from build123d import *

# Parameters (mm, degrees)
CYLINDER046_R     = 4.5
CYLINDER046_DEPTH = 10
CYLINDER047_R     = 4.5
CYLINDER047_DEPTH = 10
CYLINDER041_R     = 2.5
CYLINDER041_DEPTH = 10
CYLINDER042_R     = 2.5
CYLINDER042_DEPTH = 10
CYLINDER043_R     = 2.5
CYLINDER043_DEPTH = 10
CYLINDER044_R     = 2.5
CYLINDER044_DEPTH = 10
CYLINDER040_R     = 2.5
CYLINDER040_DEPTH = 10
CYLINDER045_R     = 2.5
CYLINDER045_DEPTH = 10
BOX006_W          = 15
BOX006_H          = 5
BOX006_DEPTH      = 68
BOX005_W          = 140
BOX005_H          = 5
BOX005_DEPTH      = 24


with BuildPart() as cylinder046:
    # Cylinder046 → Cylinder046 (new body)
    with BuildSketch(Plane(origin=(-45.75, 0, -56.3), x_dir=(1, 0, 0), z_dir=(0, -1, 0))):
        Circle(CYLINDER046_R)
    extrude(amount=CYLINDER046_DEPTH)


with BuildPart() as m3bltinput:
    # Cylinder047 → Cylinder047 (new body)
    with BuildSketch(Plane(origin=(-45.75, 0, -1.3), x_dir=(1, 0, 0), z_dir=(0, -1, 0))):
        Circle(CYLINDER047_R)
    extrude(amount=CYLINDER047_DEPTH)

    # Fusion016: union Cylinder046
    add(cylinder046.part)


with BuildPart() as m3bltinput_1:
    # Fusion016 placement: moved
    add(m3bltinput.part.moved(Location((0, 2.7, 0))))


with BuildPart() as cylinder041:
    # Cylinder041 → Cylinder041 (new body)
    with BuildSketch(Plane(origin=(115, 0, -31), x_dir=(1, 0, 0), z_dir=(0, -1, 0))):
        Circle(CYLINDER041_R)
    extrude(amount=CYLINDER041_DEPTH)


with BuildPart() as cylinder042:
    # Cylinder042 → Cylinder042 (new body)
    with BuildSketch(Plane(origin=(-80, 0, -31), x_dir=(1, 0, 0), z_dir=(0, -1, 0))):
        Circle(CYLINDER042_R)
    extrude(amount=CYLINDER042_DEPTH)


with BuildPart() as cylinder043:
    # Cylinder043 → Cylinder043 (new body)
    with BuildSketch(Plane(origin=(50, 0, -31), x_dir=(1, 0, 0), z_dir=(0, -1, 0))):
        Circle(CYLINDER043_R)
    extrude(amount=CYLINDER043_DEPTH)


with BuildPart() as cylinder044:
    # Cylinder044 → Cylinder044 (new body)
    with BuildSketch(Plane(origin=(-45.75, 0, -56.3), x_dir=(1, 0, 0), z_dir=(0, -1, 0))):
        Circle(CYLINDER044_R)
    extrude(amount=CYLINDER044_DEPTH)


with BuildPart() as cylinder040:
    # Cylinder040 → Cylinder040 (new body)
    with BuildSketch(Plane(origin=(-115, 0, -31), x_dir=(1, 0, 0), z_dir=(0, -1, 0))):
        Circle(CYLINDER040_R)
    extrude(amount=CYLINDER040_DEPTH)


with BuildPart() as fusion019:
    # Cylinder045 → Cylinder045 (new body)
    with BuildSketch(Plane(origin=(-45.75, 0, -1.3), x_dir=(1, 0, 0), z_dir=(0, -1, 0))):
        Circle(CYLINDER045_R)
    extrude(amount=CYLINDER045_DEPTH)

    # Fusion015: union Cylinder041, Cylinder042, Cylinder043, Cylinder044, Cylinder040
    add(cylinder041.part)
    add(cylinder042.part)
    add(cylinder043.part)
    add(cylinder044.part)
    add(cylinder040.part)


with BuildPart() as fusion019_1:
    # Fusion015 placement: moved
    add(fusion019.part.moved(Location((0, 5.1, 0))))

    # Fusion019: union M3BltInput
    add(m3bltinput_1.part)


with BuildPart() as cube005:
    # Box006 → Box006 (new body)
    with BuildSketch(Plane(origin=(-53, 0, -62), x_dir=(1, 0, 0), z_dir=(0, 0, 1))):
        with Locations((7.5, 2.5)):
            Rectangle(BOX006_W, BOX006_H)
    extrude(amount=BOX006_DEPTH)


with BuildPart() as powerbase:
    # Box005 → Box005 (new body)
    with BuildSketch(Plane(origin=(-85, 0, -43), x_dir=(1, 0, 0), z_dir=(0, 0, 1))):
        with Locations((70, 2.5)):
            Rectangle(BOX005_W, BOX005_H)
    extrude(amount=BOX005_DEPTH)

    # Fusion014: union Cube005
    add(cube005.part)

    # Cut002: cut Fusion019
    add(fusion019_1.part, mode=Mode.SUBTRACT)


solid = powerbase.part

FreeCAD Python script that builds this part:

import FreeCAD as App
import Part
import Sketcher

doc = App.newDocument("Part")
body = doc.addObject("PartDesign::Body", "Body")

# Sketch on XZ plane
sketch1 = body.newObject("Sketcher::SketchObject", "Sketch")
sketch1.AttachmentSupport = (doc.getObject("XZ_Plane"), [""])
sketch1.MapMode = "FlatFace"
sketch1.addGeometry(Part.Circle(App.Vector(-45.8, -56.3, 0), App.Vector(0, 0, 1), 4.5), False)
sketch1.addConstraint([
    Sketcher.Constraint("Diameter", 0, 9.0),
    Sketcher.Constraint("DistanceY", 0, 3, -1, 1, 56.3),
    Sketcher.Constraint("DistanceX", 0, 3, -1, 1, 45.75),
])
pad1 = body.newObject("PartDesign::Pad", "Pad")
pad1.Profile = sketch1
pad1.Length = 10
body2 = doc.addObject("PartDesign::Body", "Body001")
body2.AllowCompound = True

# Sketch on XZ plane
sketch2 = body2.newObject("Sketcher::SketchObject", "Sketch001")
sketch2.AttachmentSupport = (doc.getObject("XZ_Plane001"), [""])
sketch2.MapMode = "FlatFace"
sketch2.addGeometry(Part.Circle(App.Vector(-45.8, -1.3, 0), App.Vector(0, 0, 1), 4.5), False)
sketch2.addConstraint([
    Sketcher.Constraint("Diameter", 0, 9.0),
    Sketcher.Constraint("DistanceY", 0, 3, -1, 1, 1.3),
    Sketcher.Constraint("DistanceX", 0, 3, -1, 1, 45.75),
])
pad2 = body2.newObject("PartDesign::Pad", "Pad001")
pad2.Profile = sketch2
pad2.Length = 10
doc.recompute()

boolean = body2.newObject("PartDesign::Boolean", "Boolean")
boolean.Type = "Fuse"
boolean.addObjects([body])
body3 = doc.addObject("PartDesign::Body", "Body002")
body3.AllowCompound = True
doc.recompute()

body2.Placement = App.Placement(App.Vector(0, 2.7, 0), App.Rotation(App.Vector(0, 0, 1), 0))
boolean2 = body3.newObject("PartDesign::Boolean", "Boolean001")
boolean2.Type = "Fuse"
boolean2.addObjects([body2])
body4 = doc.addObject("PartDesign::Body", "Body003")

# Sketch on XZ plane
sketch3 = body4.newObject("Sketcher::SketchObject", "Sketch002")
sketch3.AttachmentSupport = (doc.getObject("XZ_Plane003"), [""])
sketch3.MapMode = "FlatFace"
sketch3.addGeometry(Part.Circle(App.Vector(115, -31, 0), App.Vector(0, 0, 1), 2.5), False)
sketch3.addConstraint([
    Sketcher.Constraint("Diameter", 0, 5.0),
    Sketcher.Constraint("DistanceX", -1, 1, 0, 3, 115.0),
    Sketcher.Constraint("DistanceY", 0, 3, -1, 1, 31.0),
])
pad3 = body4.newObject("PartDesign::Pad", "Pad002")
pad3.Profile = sketch3
pad3.Length = 10
body5 = doc.addObject("PartDesign::Body", "Body004")

# Sketch on XZ plane
sketch4 = body5.newObject("Sketcher::SketchObject", "Sketch003")
sketch4.AttachmentSupport = (doc.getObject("XZ_Plane004"), [""])
sketch4.MapMode = "FlatFace"
sketch4.addGeometry(Part.Circle(App.Vector(-80, -31, 0), App.Vector(0, 0, 1), 2.5), False)
sketch4.addConstraint([
    Sketcher.Constraint("Diameter", 0, 5.0),
    Sketcher.Constraint("DistanceX", 0, 3, -1, 1, 80.0),
    Sketcher.Constraint("DistanceY", 0, 3, -1, 1, 31.0),
])
pad4 = body5.newObject("PartDesign::Pad", "Pad003")
pad4.Profile = sketch4
pad4.Length = 10
body6 = doc.addObject("PartDesign::Body", "Body005")

# Sketch on XZ plane
sketch5 = body6.newObject("Sketcher::SketchObject", "Sketch004")
sketch5.AttachmentSupport = (doc.getObject("XZ_Plane005"), [""])
sketch5.MapMode = "FlatFace"
sketch5.addGeometry(Part.Circle(App.Vector(50, -31, 0), App.Vector(0, 0, 1), 2.5), False)
sketch5.addConstraint([
    Sketcher.Constraint("Diameter", 0, 5.0),
    Sketcher.Constraint("DistanceX", -1, 1, 0, 3, 50.0),
    Sketcher.Constraint("DistanceY", 0, 3, -1, 1, 31.0),
])
pad5 = body6.newObject("PartDesign::Pad", "Pad004")
pad5.Profile = sketch5
pad5.Length = 10
body7 = doc.addObject("PartDesign::Body", "Body006")

# Sketch on XZ plane
sketch6 = body7.newObject("Sketcher::SketchObject", "Sketch005")
sketch6.AttachmentSupport = (doc.getObject("XZ_Plane006"), [""])
sketch6.MapMode = "FlatFace"
sketch6.addGeometry(Part.Circle(App.Vector(-45.8, -56.3, 0), App.Vector(0, 0, 1), 2.5), False)
sketch6.addConstraint([
    Sketcher.Constraint("Diameter", 0, 5.0),
    Sketcher.Constraint("DistanceY", 0, 3, -1, 1, 56.3),
    Sketcher.Constraint("DistanceX", 0, 3, -1, 1, 45.75),
])
pad6 = body7.newObject("PartDesign::Pad", "Pad005")
pad6.Profile = sketch6
pad6.Length = 10
body8 = doc.addObject("PartDesign::Body", "Body007")

# Sketch on XZ plane
sketch7 = body8.newObject("Sketcher::SketchObject", "Sketch006")
sketch7.AttachmentSupport = (doc.getObject("XZ_Plane007"), [""])
sketch7.MapMode = "FlatFace"
sketch7.addGeometry(Part.Circle(App.Vector(-115, -31, 0), App.Vector(0, 0, 1), 2.5), False)
sketch7.addConstraint([
    Sketcher.Constraint("Diameter", 0, 5.0),
    Sketcher.Constraint("DistanceX", 0, 3, -1, 1, 115.0),
    Sketcher.Constraint("DistanceY", 0, 3, -1, 1, 31.0),
])
pad7 = body8.newObject("PartDesign::Pad", "Pad006")
pad7.Profile = sketch7
pad7.Length = 10
body9 = doc.addObject("PartDesign::Body", "Body008")
body9.AllowCompound = True

# Sketch on XZ plane
sketch8 = body9.newObject("Sketcher::SketchObject", "Sketch007")
sketch8.AttachmentSupport = (doc.getObject("XZ_Plane008"), [""])
sketch8.MapMode = "FlatFace"
sketch8.addGeometry(Part.Circle(App.Vector(-45.8, -1.3, 0), App.Vector(0, 0, 1), 2.5), False)
sketch8.addConstraint([
    Sketcher.Constraint("Diameter", 0, 5.0),
    Sketcher.Constraint("DistanceY", 0, 3, -1, 1, 1.3),
    Sketcher.Constraint("DistanceX", 0, 3, -1, 1, 45.75),
])
pad8 = body9.newObject("PartDesign::Pad", "Pad007")
pad8.Profile = sketch8
pad8.Length = 10
doc.recompute()

boolean3 = body9.newObject("PartDesign::Boolean", "Boolean002")
boolean3.Type = "Fuse"
boolean3.addObjects([body4])
doc.recompute()

boolean4 = body9.newObject("PartDesign::Boolean", "Boolean003")
boolean4.Type = "Fuse"
boolean4.addObjects([body5])
doc.recompute()

boolean5 = body9.newObject("PartDesign::Boolean", "Boolean004")
boolean5.Type = "Fuse"
boolean5.addObjects([body6])
doc.recompute()

boolean6 = body9.newObject("PartDesign::Boolean", "Boolean005")
boolean6.Type = "Fuse"
boolean6.addObjects([body7])
doc.recompute()

boolean7 = body9.newObject("PartDesign::Boolean", "Boolean006")
boolean7.Type = "Fuse"
boolean7.addObjects([body8])
body10 = doc.addObject("PartDesign::Body", "Body009")
body10.AllowCompound = True
doc.recompute()

body9.Placement = App.Placement(App.Vector(0, 5.1, 0), App.Rotation(App.Vector(0, 0, 1), 0))
boolean8 = body10.newObject("PartDesign::Boolean", "Boolean007")
boolean8.Type = "Fuse"
boolean8.addObjects([body9])
doc.recompute()

boolean9 = body10.newObject("PartDesign::Boolean", "Boolean008")
boolean9.Type = "Fuse"
boolean9.addObjects([body3])
body11 = doc.addObject("PartDesign::Body", "Body010")

# Sketch on XY plane
sketch9 = body11.newObject("Sketcher::SketchObject", "Sketch008")
sketch9.AttachmentSupport = (doc.getObject("XY_Plane010"), [""])
sketch9.MapMode = "FlatFace"
sketch9.AttachmentOffset = App.Placement(App.Vector(0, 0, -62), App.Rotation())
sketch9.addGeometry([
    Part.LineSegment(App.Vector(-53, 5, 0), App.Vector(-53, 0, 0)),
    Part.LineSegment(App.Vector(-53, 0, 0), App.Vector(-38, 0, 0)),
    Part.LineSegment(App.Vector(-38, 0, 0), App.Vector(-38, 5, 0)),
    Part.LineSegment(App.Vector(-38, 5, 0), App.Vector(-53, 5, 0)),
], False)
sketch9.addConstraint([
    Sketcher.Constraint("Coincident", 0, 2, 1, 1),
    Sketcher.Constraint("Coincident", 1, 2, 2, 1),
    Sketcher.Constraint("Coincident", 2, 2, 3, 1),
    Sketcher.Constraint("Coincident", 3, 2, 0, 1),
    Sketcher.Constraint("Vertical", 0),
    Sketcher.Constraint("Horizontal", 1),
    Sketcher.Constraint("Vertical", 2),
    Sketcher.Constraint("Horizontal", 3),
    Sketcher.Constraint("PointOnObject", 0, 2, -1),
    Sketcher.Constraint("DistanceX", 1, 1, 1, 2, 15.0),
    Sketcher.Constraint("DistanceY", 0, 2, 0, 1, 5.0),
    Sketcher.Constraint("DistanceX", 0, 2, -1, 1, 53.0),
])
pad9 = body11.newObject("PartDesign::Pad", "Pad008")
pad9.Profile = sketch9
pad9.Length = 68
body12 = doc.addObject("PartDesign::Body", "Body011")

# Sketch on XY plane
sketch10 = body12.newObject("Sketcher::SketchObject", "Sketch009")
sketch10.AttachmentSupport = (doc.getObject("XY_Plane011"), [""])
sketch10.MapMode = "FlatFace"
sketch10.AttachmentOffset = App.Placement(App.Vector(0, 0, -43), App.Rotation())
sketch10.addGeometry([
    Part.LineSegment(App.Vector(-85, 5, 0), App.Vector(-85, 0, 0)),
    Part.LineSegment(App.Vector(-85, 0, 0), App.Vector(55, 0, 0)),
    Part.LineSegment(App.Vector(55, 0, 0), App.Vector(55, 5, 0)),
    Part.LineSegment(App.Vector(55, 5, 0), App.Vector(-85, 5, 0)),
], False)
sketch10.addConstraint([
    Sketcher.Constraint("Coincident", 0, 2, 1, 1),
    Sketcher.Constraint("Coincident", 1, 2, 2, 1),
    Sketcher.Constraint("Coincident", 2, 2, 3, 1),
    Sketcher.Constraint("Coincident", 3, 2, 0, 1),
    Sketcher.Constraint("Vertical", 0),
    Sketcher.Constraint("Horizontal", 1),
    Sketcher.Constraint("Vertical", 2),
    Sketcher.Constraint("Horizontal", 3),
    Sketcher.Constraint("PointOnObject", 0, 2, -1),
    Sketcher.Constraint("DistanceX", 1, 1, 1, 2, 140.0),
    Sketcher.Constraint("DistanceY", 0, 2, 0, 1, 5.0),
    Sketcher.Constraint("DistanceX", 0, 2, -1, 1, 85.0),
])
pad10 = body12.newObject("PartDesign::Pad", "Pad009")
pad10.Profile = sketch10
pad10.Length = 24
doc.recompute()

boolean10 = body12.newObject("PartDesign::Boolean", "Boolean009")
boolean10.Type = "Fuse"
boolean10.addObjects([body11])
doc.recompute()

boolean11 = body12.newObject("PartDesign::Boolean", "Boolean010")
boolean11.Type = "Cut"
boolean11.addObjects([body10])

doc.recompute()
